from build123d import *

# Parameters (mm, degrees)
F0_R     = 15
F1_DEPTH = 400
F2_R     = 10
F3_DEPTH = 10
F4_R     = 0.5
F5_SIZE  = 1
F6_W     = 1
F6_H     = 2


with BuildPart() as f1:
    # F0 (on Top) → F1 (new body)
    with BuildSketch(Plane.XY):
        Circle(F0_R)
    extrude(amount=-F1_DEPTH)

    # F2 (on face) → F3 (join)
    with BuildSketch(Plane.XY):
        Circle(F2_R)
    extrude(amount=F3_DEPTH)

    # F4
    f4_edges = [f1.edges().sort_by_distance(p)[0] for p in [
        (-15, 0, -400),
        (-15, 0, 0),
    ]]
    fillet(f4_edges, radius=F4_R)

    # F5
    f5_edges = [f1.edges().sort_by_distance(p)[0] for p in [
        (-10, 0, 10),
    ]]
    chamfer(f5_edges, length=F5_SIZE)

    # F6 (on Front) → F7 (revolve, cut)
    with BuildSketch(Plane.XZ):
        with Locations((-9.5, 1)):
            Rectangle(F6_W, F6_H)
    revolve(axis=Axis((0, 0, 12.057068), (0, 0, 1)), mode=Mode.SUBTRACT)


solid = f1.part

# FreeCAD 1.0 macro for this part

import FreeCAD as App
import Part
import Sketcher

V = App.Vector


def edges_at(feature, points):
    """Names of the edges that pass closest to the given points."""
    edges = feature.Shape.Edges
    near = lambda p: min(range(len(edges)), key=lambda i: edges[i].distToShape(Part.Vertex(*p))[0])
    return sorted({f"Edge{near(p) + 1}" for p in points})


def add_polygon(sketch, points):
    """Adds a closed chain of lines whose ends are joined by coincident constraints."""
    first, n = sketch.GeometryCount, len(points)
    for a, b in zip(points, points[1:] + points[:1]):
        sketch.addGeometry(Part.LineSegment(App.Vector(*a, 0), App.Vector(*b, 0)), False)
    for i in range(n):
        sketch.addConstraint(Sketcher.Constraint("Coincident", first + i, 2, first + (i + 1) % n, 1))

doc = App.newDocument("Part")
body = doc.addObject("PartDesign::Body", "Body")

# Sketch on XY plane
sketch1 = body.newObject("Sketcher::SketchObject", "Sketch")
sketch1.AttachmentSupport = (doc.getObject("XY_Plane"), [""])
sketch1.MapMode = "FlatFace"
sketch1.addGeometry(Part.Circle(V(0, 0, 0), V(0, 0, 1), 15), False)
sketch1.addConstraint(Sketcher.Constraint("Coincident", 0, 3, -1, 1))
sketch1.addConstraint(Sketcher.Constraint("Diameter", 0, 30.0))
pad1 = body.newObject("PartDesign::Pad", "Pad")
pad1.Profile = sketch1
pad1.Length = 400
pad1.Reversed = True

# Sketch on XY plane
sketch2 = body.newObject("Sketcher::SketchObject", "Sketch001")
sketch2.AttachmentSupport = (doc.getObject("XY_Plane"), [""])
sketch2.MapMode = "FlatFace"
sketch2.addGeometry(Part.Circle(V(0, 0, 0), V(0, 0, 1), 10), False)
sketch2.addConstraint(Sketcher.Constraint("Coincident", 0, 3, -1, 1))
sketch2.addConstraint(Sketcher.Constraint("Diameter", 0, 20.0))
pad2 = body.newObject("PartDesign::Pad", "Pad001")
pad2.Profile = sketch2
pad2.Length = 10
doc.recompute()

fillet = body.newObject("PartDesign::Fillet", "Fillet")
fillet.Base = (pad2, edges_at(pad2, [(-15, 0, -400), (-15, 0, 0)]))
fillet.Radius = 0.5
doc.recompute()

chamfer = body.newObject("PartDesign::Chamfer", "Chamfer")
chamfer.Base = (fillet, edges_at(fillet, [(-10, 0, 10)]))
chamfer.Size = 1

# Sketch on XZ plane
sketch3 = body.newObject("Sketcher::SketchObject", "Sketch002")
sketch3.AttachmentSupport = (doc.getObject("XZ_Plane"), [""])
sketch3.MapMode = "FlatFace"
add_polygon(sketch3, [(-10, 2), (-10, 0), (-9, 0), (-9, 2)])  # lines 0-3
sketch3.addConstraint(Sketcher.Constraint("Vertical", 0))
sketch3.addConstraint(Sketcher.Constraint("Horizontal", 1))
sketch3.addConstraint(Sketcher.Constraint("Vertical", 2))
sketch3.addConstraint(Sketcher.Constraint("Horizontal", 3))
sketch3.addConstraint(Sketcher.Constraint("PointOnObject", 0, 2, -1))
sketch3.addConstraint(Sketcher.Constraint("DistanceX", 1, 1, 1, 2, 1.0))
sketch3.addConstraint(Sketcher.Constraint("DistanceY", 0, 2, 0, 1, 2.0))
sketch3.addConstraint(Sketcher.Constraint("DistanceX", 0, 2, -1, 1, 10.0))
groove = body.newObject("PartDesign::Groove", "Groove")
groove.Profile = sketch3
groove.ReferenceAxis = (sketch3, ["V_Axis"])
groove.Angle = 360

doc.recompute()
